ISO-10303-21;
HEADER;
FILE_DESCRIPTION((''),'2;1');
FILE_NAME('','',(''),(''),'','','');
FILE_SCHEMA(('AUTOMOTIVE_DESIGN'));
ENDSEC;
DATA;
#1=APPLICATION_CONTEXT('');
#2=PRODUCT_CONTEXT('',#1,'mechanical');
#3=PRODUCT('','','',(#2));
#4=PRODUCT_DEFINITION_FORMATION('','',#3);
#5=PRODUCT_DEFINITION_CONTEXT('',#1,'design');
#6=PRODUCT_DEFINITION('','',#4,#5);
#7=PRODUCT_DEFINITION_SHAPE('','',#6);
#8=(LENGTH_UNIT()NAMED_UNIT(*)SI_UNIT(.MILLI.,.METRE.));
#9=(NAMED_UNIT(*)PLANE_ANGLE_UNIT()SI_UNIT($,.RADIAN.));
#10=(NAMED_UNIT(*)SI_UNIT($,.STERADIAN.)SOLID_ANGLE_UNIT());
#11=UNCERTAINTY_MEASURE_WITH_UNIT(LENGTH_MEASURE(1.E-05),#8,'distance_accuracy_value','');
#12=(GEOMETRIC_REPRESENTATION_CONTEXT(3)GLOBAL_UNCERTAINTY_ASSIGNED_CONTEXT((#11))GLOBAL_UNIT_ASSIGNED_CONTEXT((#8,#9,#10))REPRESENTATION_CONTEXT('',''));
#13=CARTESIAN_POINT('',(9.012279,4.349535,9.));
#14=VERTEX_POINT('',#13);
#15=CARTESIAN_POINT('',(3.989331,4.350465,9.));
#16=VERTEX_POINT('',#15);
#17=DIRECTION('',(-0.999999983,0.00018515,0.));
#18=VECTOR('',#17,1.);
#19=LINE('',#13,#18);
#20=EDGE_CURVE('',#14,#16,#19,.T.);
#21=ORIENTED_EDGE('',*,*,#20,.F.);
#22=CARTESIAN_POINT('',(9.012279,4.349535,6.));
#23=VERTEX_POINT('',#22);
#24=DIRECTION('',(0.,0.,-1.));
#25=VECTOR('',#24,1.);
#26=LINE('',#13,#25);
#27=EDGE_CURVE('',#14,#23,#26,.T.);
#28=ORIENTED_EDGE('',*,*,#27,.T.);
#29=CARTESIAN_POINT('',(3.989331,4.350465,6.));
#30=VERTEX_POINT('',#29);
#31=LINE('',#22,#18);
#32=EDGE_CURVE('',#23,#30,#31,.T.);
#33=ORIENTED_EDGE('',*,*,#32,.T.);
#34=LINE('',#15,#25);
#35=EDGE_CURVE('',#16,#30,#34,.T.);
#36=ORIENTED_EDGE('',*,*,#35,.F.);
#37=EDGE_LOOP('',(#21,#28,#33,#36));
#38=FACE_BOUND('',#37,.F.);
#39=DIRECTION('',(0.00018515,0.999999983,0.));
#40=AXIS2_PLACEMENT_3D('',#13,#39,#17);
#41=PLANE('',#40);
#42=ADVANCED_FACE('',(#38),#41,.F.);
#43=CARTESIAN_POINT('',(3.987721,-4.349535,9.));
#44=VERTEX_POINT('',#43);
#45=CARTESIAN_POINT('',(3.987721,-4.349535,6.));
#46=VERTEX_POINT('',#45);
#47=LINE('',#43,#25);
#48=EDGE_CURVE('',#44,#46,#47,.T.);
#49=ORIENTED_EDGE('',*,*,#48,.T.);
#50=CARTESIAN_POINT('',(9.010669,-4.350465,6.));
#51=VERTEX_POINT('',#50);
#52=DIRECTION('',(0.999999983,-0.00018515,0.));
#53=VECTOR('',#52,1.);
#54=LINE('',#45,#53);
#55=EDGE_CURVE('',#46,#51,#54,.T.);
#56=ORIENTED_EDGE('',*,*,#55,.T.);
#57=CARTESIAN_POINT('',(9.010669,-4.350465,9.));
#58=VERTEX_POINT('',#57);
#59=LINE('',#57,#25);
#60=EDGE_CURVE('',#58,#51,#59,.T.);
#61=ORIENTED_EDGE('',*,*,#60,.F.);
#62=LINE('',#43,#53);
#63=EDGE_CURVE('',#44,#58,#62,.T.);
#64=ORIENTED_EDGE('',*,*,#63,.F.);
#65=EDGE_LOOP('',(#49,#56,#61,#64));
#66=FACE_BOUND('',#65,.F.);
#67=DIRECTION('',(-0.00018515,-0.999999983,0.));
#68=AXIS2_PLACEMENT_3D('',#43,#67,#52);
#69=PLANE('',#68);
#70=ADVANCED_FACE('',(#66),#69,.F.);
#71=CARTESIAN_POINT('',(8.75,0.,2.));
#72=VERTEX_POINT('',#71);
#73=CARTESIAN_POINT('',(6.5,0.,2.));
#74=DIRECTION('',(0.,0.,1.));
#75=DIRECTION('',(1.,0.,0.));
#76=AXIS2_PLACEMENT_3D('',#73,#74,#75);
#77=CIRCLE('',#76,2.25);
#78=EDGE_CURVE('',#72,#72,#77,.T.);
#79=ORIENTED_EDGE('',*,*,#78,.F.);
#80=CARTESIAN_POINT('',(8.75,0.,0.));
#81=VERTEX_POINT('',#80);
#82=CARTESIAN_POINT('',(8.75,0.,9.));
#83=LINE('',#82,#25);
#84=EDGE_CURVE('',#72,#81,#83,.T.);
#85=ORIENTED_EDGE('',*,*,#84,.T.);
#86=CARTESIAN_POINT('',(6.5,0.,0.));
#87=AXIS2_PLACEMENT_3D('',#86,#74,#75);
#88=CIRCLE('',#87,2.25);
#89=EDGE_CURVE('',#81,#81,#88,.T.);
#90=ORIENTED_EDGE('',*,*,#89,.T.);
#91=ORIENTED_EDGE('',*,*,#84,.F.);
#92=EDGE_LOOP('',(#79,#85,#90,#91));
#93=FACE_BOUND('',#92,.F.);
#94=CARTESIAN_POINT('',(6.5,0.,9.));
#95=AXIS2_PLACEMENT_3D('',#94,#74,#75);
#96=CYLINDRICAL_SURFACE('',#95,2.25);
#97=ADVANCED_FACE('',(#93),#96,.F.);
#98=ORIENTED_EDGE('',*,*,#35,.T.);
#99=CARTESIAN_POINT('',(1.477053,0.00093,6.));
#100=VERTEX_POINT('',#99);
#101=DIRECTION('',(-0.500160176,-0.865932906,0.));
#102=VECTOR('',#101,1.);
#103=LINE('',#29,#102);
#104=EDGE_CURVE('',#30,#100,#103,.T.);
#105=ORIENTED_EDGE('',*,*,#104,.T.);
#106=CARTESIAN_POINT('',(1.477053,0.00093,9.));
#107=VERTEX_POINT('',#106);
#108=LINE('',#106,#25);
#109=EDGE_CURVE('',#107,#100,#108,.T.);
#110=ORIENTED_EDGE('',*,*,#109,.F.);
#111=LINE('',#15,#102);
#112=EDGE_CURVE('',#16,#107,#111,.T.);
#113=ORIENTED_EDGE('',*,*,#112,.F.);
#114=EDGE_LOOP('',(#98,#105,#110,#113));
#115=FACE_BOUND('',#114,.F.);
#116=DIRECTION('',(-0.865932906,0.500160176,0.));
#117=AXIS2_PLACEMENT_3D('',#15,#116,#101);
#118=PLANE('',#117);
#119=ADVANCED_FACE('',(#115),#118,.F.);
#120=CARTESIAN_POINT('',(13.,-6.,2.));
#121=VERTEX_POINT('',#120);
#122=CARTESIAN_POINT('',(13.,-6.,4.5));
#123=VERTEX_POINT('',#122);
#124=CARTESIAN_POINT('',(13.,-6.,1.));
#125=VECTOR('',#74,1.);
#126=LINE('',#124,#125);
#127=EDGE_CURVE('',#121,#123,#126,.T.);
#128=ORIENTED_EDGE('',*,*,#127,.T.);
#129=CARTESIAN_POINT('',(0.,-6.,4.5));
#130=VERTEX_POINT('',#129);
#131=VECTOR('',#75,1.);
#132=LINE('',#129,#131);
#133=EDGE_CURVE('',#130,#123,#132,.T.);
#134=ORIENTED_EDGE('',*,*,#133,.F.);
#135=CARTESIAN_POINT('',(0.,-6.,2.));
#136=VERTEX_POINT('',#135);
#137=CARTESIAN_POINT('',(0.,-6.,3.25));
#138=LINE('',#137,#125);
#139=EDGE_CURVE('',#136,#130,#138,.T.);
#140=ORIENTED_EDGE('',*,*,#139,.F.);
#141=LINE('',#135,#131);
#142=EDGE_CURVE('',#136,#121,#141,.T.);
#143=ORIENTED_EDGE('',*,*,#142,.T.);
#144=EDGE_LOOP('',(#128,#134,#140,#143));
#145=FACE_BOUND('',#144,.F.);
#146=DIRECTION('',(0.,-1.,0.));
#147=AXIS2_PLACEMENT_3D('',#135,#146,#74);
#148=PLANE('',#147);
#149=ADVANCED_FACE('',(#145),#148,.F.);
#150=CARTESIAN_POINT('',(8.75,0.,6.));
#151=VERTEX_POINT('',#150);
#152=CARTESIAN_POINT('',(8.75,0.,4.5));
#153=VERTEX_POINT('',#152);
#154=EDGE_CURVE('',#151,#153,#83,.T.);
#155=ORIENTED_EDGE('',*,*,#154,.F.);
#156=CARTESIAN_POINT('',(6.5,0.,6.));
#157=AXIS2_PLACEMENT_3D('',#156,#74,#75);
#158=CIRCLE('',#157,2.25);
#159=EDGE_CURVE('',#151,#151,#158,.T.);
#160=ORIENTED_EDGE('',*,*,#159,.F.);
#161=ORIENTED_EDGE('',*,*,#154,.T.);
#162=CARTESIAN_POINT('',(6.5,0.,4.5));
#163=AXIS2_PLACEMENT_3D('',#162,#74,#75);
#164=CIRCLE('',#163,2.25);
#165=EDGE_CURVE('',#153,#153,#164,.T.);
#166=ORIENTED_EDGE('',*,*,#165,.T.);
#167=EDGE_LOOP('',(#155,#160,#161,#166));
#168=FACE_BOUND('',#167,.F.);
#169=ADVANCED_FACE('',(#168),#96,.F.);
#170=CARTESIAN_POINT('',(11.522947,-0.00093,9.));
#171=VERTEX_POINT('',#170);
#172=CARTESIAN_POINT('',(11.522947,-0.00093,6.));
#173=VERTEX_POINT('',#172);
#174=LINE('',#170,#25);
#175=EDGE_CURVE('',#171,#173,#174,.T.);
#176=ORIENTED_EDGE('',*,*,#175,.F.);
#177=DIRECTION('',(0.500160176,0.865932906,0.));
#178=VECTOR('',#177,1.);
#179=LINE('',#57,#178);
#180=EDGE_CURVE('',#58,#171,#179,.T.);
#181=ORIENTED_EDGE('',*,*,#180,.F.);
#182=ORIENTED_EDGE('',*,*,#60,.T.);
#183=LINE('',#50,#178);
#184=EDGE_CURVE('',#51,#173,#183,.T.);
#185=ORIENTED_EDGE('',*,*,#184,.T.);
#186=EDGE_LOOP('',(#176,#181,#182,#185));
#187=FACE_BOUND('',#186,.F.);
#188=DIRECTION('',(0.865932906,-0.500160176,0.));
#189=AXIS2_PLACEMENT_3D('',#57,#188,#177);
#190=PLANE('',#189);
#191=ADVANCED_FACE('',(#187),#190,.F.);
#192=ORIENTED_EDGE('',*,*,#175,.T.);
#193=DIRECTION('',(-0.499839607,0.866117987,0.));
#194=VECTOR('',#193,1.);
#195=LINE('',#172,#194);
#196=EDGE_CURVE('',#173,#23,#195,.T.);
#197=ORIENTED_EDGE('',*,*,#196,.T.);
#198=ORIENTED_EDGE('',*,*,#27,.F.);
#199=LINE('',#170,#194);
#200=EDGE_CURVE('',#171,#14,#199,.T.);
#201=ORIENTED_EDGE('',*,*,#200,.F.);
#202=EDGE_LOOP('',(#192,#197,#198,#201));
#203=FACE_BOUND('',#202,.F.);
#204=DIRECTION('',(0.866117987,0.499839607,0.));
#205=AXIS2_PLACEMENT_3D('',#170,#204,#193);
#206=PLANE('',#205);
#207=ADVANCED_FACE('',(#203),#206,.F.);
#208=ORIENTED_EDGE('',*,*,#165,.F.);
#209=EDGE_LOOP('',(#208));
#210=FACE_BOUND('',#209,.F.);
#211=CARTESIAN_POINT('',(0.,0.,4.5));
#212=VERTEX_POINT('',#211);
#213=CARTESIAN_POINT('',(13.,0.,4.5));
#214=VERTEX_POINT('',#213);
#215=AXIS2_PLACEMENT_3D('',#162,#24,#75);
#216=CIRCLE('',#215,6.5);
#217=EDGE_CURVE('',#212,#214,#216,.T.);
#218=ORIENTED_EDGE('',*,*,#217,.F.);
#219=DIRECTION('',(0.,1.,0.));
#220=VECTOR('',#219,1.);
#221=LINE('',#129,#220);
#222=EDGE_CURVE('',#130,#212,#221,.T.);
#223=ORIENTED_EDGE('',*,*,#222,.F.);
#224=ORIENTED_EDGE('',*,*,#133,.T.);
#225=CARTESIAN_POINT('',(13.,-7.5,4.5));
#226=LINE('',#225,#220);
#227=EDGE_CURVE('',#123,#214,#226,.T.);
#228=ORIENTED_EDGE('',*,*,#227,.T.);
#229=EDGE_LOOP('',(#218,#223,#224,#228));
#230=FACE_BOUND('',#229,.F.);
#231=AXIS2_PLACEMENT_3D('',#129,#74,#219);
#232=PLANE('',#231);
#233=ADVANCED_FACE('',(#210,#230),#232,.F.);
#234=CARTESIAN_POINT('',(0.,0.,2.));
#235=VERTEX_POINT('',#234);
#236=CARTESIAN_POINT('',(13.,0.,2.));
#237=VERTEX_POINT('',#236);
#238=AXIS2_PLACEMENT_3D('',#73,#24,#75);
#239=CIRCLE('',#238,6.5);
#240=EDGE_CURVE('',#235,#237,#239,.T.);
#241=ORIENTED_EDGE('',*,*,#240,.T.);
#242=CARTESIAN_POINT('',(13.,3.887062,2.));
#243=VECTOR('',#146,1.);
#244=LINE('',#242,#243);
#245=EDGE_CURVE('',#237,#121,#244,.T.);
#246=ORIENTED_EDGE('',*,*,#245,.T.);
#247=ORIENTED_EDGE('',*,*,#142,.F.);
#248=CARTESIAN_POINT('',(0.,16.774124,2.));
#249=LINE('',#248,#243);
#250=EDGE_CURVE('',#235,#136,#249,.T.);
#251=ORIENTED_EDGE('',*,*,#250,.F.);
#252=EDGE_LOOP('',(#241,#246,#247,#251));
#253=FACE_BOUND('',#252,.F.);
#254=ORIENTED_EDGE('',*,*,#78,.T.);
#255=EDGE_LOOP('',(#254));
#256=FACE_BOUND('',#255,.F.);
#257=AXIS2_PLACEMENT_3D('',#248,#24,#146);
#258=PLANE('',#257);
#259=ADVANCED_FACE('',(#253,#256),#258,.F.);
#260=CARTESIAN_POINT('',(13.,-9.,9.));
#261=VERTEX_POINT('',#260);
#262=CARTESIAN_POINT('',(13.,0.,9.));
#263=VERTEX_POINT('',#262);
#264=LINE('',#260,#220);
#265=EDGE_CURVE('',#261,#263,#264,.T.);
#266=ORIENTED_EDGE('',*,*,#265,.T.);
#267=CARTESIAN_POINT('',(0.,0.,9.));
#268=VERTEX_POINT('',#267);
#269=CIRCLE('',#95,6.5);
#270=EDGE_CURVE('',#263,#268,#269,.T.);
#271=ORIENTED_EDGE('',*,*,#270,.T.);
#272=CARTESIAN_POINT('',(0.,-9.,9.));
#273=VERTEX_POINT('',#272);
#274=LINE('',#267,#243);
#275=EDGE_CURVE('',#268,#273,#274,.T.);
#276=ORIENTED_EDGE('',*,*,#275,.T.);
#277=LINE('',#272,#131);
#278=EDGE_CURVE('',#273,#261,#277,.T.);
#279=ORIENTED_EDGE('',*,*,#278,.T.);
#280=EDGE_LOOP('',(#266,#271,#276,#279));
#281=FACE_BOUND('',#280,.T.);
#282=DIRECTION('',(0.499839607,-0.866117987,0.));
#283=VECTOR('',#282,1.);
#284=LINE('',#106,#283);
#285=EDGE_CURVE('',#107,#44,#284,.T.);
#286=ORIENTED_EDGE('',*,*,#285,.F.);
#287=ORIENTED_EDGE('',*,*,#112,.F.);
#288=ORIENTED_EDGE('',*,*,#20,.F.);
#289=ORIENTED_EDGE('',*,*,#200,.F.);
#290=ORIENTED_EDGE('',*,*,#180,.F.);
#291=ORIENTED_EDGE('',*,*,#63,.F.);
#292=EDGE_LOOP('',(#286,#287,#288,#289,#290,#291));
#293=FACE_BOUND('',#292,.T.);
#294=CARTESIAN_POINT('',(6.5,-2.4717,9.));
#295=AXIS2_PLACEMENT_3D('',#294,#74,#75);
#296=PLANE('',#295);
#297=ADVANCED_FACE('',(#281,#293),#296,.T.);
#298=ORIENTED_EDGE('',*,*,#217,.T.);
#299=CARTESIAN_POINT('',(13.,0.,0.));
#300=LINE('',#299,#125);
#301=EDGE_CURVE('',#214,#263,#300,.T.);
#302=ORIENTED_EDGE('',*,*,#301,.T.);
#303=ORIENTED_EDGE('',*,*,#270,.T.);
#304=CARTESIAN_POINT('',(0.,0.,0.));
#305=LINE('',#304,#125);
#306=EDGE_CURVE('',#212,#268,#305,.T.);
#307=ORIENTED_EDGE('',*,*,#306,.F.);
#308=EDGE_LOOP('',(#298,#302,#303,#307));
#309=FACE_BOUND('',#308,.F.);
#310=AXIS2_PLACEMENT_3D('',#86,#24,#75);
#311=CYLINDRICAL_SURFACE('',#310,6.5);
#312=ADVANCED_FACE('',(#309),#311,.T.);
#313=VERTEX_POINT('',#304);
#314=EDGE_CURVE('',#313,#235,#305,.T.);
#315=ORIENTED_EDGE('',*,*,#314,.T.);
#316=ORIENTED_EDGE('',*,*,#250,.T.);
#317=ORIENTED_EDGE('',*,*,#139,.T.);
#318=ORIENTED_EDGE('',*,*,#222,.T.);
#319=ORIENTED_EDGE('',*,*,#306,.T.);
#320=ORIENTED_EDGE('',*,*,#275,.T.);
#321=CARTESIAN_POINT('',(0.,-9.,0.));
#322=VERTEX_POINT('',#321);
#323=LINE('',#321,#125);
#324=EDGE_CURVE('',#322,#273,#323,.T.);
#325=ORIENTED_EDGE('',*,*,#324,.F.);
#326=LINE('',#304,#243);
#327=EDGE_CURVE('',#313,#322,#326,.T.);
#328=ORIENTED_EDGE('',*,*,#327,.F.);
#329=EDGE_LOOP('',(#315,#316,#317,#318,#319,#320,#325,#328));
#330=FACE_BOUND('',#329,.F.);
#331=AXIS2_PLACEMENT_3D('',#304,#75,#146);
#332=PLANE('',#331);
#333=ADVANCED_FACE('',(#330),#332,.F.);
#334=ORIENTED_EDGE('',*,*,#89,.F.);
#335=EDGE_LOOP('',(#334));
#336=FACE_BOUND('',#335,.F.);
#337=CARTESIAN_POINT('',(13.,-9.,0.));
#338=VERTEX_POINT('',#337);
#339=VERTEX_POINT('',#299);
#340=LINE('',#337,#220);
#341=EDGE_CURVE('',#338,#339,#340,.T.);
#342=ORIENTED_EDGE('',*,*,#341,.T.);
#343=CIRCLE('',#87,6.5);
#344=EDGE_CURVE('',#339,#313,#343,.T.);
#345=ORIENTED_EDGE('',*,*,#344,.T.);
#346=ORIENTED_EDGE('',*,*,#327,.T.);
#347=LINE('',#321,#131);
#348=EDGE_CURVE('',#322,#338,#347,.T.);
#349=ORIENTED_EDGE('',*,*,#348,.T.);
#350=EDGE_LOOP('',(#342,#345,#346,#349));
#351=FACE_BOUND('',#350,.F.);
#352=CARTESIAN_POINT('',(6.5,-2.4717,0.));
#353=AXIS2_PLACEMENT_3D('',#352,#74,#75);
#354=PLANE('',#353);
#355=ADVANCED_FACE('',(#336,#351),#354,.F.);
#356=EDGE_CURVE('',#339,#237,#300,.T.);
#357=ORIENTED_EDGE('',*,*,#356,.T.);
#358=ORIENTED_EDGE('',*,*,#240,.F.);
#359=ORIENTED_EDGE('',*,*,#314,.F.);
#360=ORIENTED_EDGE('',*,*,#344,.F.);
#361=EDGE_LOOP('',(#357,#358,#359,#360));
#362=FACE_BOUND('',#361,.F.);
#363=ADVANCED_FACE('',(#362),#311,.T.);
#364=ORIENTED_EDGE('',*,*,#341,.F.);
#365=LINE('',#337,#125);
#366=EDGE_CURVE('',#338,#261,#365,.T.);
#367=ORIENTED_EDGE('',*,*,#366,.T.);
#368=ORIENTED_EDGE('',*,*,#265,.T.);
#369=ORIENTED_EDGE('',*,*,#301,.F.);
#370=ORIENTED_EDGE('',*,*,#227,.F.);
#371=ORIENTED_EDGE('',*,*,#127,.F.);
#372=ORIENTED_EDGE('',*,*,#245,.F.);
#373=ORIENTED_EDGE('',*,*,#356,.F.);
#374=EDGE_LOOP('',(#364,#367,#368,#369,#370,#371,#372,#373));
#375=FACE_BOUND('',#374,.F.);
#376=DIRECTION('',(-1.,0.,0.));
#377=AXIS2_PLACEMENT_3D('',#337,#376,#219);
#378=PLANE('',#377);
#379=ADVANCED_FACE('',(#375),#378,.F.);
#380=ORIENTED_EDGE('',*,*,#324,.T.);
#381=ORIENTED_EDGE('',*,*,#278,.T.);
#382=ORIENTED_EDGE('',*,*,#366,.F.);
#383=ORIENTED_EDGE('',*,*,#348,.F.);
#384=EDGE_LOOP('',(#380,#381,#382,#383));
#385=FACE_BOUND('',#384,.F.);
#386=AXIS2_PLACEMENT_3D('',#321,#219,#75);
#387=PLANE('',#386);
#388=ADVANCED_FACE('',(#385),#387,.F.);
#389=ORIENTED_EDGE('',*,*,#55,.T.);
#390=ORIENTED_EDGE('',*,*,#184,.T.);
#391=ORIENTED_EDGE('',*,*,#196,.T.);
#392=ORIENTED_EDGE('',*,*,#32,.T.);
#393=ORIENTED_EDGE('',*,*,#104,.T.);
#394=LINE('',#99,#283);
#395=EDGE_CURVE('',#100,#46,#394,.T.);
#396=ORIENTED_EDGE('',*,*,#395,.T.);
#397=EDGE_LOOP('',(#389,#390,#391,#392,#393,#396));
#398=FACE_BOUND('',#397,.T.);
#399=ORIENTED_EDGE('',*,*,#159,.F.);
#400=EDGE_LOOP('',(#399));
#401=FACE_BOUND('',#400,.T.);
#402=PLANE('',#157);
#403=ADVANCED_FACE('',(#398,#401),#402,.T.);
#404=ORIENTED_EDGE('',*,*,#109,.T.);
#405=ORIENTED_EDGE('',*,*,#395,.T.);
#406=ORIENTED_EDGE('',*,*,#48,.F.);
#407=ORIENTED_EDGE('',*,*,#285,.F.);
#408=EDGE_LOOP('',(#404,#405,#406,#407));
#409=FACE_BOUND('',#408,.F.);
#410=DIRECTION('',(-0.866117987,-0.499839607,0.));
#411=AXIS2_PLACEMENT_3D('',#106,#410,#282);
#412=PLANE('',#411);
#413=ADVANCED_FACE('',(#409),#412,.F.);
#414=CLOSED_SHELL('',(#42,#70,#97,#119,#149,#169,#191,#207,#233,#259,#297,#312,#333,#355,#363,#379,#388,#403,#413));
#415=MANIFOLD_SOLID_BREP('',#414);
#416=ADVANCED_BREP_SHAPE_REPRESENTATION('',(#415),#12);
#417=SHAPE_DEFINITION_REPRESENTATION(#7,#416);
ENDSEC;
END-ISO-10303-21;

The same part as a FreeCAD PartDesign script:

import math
import FreeCAD as App
import Part
import Sketcher

doc = App.newDocument("Part")
params = doc.addObject("Spreadsheet::Sheet", "Params")
for row, (alias, value) in enumerate([
    ("sketch1_radius", "6.5 mm"),
    ("sketch1_height", "9 mm"),
    ("pad1_length", "9 mm"),
    ("pocket1_length", "3 mm"),
    ("sketch3_diameter", "4.5 mm"),
    ("pocket2_length", "25.4 mm"),
    ("sketch4_height", "2.5 mm"),
    ("pocket3_length", "25 mm"),
], start=1):
    params.set(f"A{row}", alias)
    params.set(f"B{row}", "=" + value)
    params.setAlias(f"B{row}", alias)

body = doc.addObject("PartDesign::Body", "Body")

sketch1 = body.newObject("Sketcher::SketchObject", "Sketch")
sketch1.AttachmentSupport = (doc.getObject("XY_Plane"), [""])
sketch1.MapMode = "FlatFace"
sketch1.addGeometry(Part.ArcOfCircle(Part.Circle(App.Vector(6.5, 0, 0), App.Vector(0, 0, 1), 6.5), math.radians(0), math.radians(180)), False)
sketch1.addGeometry(Part.LineSegment(App.Vector(0, 0, 0), App.Vector(0, -9, 0)), False)
sketch1.addGeometry(Part.LineSegment(App.Vector(0, -9, 0), App.Vector(13, -9, 0)), False)
sketch1.addGeometry(Part.LineSegment(App.Vector(13, -9, 0), App.Vector(13, 0, 0)), False)
sketch1.addConstraint(Sketcher.Constraint("Tangent", 0, 2, 1, 1))
sketch1.addConstraint(Sketcher.Constraint("Coincident", 1, 2, 2, 1))
sketch1.addConstraint(Sketcher.Constraint("Coincident", 2, 2, 3, 1))
sketch1.addConstraint(Sketcher.Constraint("Tangent", 3, 2, 0, 1))
sketch1.addConstraint(Sketcher.Constraint("Vertical", 1))
sketch1.addConstraint(Sketcher.Constraint("Horizontal", 2))
sketch1.addConstraint(Sketcher.Constraint("Vertical", 3))
sketch1.addConstraint(Sketcher.Constraint("Coincident", 0, 2, -1, 1))
sketch1.addConstraint(Sketcher.Constraint("Radius", 0, 6.5))
sketch1.addConstraint(Sketcher.Constraint("DistanceY", 1, 2, 1, 1, 9.0))
sketch1.setExpression("Constraints[8]", "Params.sketch1_radius")
sketch1.setExpression("Constraints[9]", "Params.sketch1_height")
pad1 = body.newObject("PartDesign::Pad", "Pad")
pad1.Profile = sketch1
pad1.setExpression("Length", "Params.pad1_length")

sketch2 = body.newObject("Sketcher::SketchObject", "Sketch001")
sketch2.AttachmentSupport = (doc.getObject("XY_Plane"), [""])
sketch2.MapMode = "FlatFace"
sketch2.AttachmentOffset = App.Placement(App.Vector(0, 0, 9), App.Rotation())
sketch2.addGeometry(Part.LineSegment(App.Vector(11.522947, -0.00093, 0), App.Vector(9.012279, 4.349535, 0)), False)
sketch2.addGeometry(Part.LineSegment(App.Vector(9.012279, 4.349535, 0), App.Vector(3.989331, 4.350465, 0)), False)
sketch2.addGeometry(Part.LineSegment(App.Vector(3.989331, 4.350465, 0), App.Vector(1.477053, 0.00093, 0)), False)
sketch2.addGeometry(Part.LineSegment(App.Vector(1.477053, 0.00093, 0), App.Vector(3.987721, -4.349535, 0)), False)
sketch2.addGeometry(Part.LineSegment(App.Vector(3.987721, -4.349535, 0), App.Vector(9.010669, -4.350465, 0)), False)
sketch2.addGeometry(Part.LineSegment(App.Vector(9.010669, -4.350465, 0), App.Vector(11.522947, -0.00093, 0)), False)
sketch2.addConstraint(Sketcher.Constraint("Coincident", 0, 2, 1, 1))
sketch2.addConstraint(Sketcher.Constraint("Coincident", 1, 2, 2, 1))
sketch2.addConstraint(Sketcher.Constraint("Coincident", 2, 2, 3, 1))
sketch2.addConstraint(Sketcher.Constraint("Coincident", 3, 2, 4, 1))
sketch2.addConstraint(Sketcher.Constraint("Coincident", 4, 2, 5, 1))
sketch2.addConstraint(Sketcher.Constraint("Coincident", 5, 2, 0, 1))
sketch2.addConstraint(Sketcher.Constraint("Parallel", 0, 3))
sketch2.addConstraint(Sketcher.Constraint("Parallel", 1, 4))
sketch2.addConstraint(Sketcher.Constraint("Parallel", 2, 5))
sketch2.addConstraint(Sketcher.Constraint("Equal", 0, 1))
sketch2.addConstraint(Sketcher.Constraint("Equal", 1, 2))
sketch2.addConstraint(Sketcher.Constraint("Equal", 2, 3))
sketch2.addConstraint(Sketcher.Constraint("DistanceY", 3, 2, 1, 2, 8.7))
sketch2.addConstraint(Sketcher.Constraint("Distance", 1, 5.022948))
sketch2.addConstraint(Sketcher.Constraint("DistanceX", -1, 1, 0, 2, 9.012279))
sketch2.addConstraint(Sketcher.Constraint("DistanceY", -1, 1, 2, 2, 0.00093))
sketch2.addConstraint(Sketcher.Constraint("DistanceX", -1, 1, 3, 2, 3.987721))
sketch2.addConstraint(Sketcher.Constraint("DistanceY", 5, 2, -1, 1, 0.00093))
pocket1 = body.newObject("PartDesign::Pocket", "Pocket")
pocket1.Profile = sketch2
pocket1.setExpression("Length", "Params.pocket1_length")

sketch3 = body.newObject("Sketcher::SketchObject", "Sketch002")
sketch3.AttachmentSupport = (doc.getObject("XY_Plane"), [""])
sketch3.MapMode = "FlatFace"
sketch3.AttachmentOffset = App.Placement(App.Vector(0, 0, 9), App.Rotation())
sketch3.addGeometry(Part.Circle(App.Vector(6.5, 0, 0), App.Vector(0, 0, 1), 2.25), False)
sketch3.addConstraint(Sketcher.Constraint("PointOnObject", 0, 3, -1))
sketch3.addConstraint(Sketcher.Constraint("Diameter", 0, 4.5))
sketch3.addConstraint(Sketcher.Constraint("DistanceX", -1, 1, 0, 3, 6.5))
sketch3.setExpression("Constraints[1]", "Params.sketch3_diameter")
pocket2 = body.newObject("PartDesign::Pocket", "Pocket001")
pocket2.Profile = sketch3
pocket2.setExpression("Length", "Params.pocket2_length")

sketch4 = body.newObject("Sketcher::SketchObject", "Sketch003")
sketch4.AttachmentSupport = (doc.getObject("YZ_Plane"), [""])
sketch4.MapMode = "FlatFace"
sketch4.addGeometry(Part.LineSegment(App.Vector(16.774124, 4.5, 0), App.Vector(16.774124, 2, 0)), False)
sketch4.addGeometry(Part.LineSegment(App.Vector(16.774124, 2, 0), App.Vector(-6, 2, 0)), False)
sketch4.addGeometry(Part.LineSegment(App.Vector(-6, 2, 0), App.Vector(-6, 4.5, 0)), False)
sketch4.addGeometry(Part.LineSegment(App.Vector(-6, 4.5, 0), App.Vector(16.774124, 4.5, 0)), False)
sketch4.addConstraint(Sketcher.Constraint("Coincident", 0, 2, 1, 1))
sketch4.addConstraint(Sketcher.Constraint("Coincident", 1, 2, 2, 1))
sketch4.addConstraint(Sketcher.Constraint("Coincident", 2, 2, 3, 1))
sketch4.addConstraint(Sketcher.Constraint("Coincident", 3, 2, 0, 1))
sketch4.addConstraint(Sketcher.Constraint("Vertical", 0))
sketch4.addConstraint(Sketcher.Constraint("Horizontal", 1))
sketch4.addConstraint(Sketcher.Constraint("Vertical", 2))
sketch4.addConstraint(Sketcher.Constraint("Horizontal", 3))
sketch4.addConstraint(Sketcher.Constraint("DistanceY", 0, 2, 0, 1, 2.5))
sketch4.addConstraint(Sketcher.Constraint("DistanceY", -1, 1, 0, 2, 2.0))
sketch4.addConstraint(Sketcher.Constraint("DistanceX", 1, 2, -1, 1, 6.0))
sketch4.addConstraint(Sketcher.Constraint("DistanceX", 1, 2, 1, 1, 22.774124))
sketch4.setExpression("Constraints[8]", "Params.sketch4_height")
pocket3 = body.newObject("PartDesign::Pocket", "Pocket002")
pocket3.Profile = sketch4
pocket3.setExpression("Length", "Params.pocket3_length")
pocket3.Reversed = True

doc.recompute()
